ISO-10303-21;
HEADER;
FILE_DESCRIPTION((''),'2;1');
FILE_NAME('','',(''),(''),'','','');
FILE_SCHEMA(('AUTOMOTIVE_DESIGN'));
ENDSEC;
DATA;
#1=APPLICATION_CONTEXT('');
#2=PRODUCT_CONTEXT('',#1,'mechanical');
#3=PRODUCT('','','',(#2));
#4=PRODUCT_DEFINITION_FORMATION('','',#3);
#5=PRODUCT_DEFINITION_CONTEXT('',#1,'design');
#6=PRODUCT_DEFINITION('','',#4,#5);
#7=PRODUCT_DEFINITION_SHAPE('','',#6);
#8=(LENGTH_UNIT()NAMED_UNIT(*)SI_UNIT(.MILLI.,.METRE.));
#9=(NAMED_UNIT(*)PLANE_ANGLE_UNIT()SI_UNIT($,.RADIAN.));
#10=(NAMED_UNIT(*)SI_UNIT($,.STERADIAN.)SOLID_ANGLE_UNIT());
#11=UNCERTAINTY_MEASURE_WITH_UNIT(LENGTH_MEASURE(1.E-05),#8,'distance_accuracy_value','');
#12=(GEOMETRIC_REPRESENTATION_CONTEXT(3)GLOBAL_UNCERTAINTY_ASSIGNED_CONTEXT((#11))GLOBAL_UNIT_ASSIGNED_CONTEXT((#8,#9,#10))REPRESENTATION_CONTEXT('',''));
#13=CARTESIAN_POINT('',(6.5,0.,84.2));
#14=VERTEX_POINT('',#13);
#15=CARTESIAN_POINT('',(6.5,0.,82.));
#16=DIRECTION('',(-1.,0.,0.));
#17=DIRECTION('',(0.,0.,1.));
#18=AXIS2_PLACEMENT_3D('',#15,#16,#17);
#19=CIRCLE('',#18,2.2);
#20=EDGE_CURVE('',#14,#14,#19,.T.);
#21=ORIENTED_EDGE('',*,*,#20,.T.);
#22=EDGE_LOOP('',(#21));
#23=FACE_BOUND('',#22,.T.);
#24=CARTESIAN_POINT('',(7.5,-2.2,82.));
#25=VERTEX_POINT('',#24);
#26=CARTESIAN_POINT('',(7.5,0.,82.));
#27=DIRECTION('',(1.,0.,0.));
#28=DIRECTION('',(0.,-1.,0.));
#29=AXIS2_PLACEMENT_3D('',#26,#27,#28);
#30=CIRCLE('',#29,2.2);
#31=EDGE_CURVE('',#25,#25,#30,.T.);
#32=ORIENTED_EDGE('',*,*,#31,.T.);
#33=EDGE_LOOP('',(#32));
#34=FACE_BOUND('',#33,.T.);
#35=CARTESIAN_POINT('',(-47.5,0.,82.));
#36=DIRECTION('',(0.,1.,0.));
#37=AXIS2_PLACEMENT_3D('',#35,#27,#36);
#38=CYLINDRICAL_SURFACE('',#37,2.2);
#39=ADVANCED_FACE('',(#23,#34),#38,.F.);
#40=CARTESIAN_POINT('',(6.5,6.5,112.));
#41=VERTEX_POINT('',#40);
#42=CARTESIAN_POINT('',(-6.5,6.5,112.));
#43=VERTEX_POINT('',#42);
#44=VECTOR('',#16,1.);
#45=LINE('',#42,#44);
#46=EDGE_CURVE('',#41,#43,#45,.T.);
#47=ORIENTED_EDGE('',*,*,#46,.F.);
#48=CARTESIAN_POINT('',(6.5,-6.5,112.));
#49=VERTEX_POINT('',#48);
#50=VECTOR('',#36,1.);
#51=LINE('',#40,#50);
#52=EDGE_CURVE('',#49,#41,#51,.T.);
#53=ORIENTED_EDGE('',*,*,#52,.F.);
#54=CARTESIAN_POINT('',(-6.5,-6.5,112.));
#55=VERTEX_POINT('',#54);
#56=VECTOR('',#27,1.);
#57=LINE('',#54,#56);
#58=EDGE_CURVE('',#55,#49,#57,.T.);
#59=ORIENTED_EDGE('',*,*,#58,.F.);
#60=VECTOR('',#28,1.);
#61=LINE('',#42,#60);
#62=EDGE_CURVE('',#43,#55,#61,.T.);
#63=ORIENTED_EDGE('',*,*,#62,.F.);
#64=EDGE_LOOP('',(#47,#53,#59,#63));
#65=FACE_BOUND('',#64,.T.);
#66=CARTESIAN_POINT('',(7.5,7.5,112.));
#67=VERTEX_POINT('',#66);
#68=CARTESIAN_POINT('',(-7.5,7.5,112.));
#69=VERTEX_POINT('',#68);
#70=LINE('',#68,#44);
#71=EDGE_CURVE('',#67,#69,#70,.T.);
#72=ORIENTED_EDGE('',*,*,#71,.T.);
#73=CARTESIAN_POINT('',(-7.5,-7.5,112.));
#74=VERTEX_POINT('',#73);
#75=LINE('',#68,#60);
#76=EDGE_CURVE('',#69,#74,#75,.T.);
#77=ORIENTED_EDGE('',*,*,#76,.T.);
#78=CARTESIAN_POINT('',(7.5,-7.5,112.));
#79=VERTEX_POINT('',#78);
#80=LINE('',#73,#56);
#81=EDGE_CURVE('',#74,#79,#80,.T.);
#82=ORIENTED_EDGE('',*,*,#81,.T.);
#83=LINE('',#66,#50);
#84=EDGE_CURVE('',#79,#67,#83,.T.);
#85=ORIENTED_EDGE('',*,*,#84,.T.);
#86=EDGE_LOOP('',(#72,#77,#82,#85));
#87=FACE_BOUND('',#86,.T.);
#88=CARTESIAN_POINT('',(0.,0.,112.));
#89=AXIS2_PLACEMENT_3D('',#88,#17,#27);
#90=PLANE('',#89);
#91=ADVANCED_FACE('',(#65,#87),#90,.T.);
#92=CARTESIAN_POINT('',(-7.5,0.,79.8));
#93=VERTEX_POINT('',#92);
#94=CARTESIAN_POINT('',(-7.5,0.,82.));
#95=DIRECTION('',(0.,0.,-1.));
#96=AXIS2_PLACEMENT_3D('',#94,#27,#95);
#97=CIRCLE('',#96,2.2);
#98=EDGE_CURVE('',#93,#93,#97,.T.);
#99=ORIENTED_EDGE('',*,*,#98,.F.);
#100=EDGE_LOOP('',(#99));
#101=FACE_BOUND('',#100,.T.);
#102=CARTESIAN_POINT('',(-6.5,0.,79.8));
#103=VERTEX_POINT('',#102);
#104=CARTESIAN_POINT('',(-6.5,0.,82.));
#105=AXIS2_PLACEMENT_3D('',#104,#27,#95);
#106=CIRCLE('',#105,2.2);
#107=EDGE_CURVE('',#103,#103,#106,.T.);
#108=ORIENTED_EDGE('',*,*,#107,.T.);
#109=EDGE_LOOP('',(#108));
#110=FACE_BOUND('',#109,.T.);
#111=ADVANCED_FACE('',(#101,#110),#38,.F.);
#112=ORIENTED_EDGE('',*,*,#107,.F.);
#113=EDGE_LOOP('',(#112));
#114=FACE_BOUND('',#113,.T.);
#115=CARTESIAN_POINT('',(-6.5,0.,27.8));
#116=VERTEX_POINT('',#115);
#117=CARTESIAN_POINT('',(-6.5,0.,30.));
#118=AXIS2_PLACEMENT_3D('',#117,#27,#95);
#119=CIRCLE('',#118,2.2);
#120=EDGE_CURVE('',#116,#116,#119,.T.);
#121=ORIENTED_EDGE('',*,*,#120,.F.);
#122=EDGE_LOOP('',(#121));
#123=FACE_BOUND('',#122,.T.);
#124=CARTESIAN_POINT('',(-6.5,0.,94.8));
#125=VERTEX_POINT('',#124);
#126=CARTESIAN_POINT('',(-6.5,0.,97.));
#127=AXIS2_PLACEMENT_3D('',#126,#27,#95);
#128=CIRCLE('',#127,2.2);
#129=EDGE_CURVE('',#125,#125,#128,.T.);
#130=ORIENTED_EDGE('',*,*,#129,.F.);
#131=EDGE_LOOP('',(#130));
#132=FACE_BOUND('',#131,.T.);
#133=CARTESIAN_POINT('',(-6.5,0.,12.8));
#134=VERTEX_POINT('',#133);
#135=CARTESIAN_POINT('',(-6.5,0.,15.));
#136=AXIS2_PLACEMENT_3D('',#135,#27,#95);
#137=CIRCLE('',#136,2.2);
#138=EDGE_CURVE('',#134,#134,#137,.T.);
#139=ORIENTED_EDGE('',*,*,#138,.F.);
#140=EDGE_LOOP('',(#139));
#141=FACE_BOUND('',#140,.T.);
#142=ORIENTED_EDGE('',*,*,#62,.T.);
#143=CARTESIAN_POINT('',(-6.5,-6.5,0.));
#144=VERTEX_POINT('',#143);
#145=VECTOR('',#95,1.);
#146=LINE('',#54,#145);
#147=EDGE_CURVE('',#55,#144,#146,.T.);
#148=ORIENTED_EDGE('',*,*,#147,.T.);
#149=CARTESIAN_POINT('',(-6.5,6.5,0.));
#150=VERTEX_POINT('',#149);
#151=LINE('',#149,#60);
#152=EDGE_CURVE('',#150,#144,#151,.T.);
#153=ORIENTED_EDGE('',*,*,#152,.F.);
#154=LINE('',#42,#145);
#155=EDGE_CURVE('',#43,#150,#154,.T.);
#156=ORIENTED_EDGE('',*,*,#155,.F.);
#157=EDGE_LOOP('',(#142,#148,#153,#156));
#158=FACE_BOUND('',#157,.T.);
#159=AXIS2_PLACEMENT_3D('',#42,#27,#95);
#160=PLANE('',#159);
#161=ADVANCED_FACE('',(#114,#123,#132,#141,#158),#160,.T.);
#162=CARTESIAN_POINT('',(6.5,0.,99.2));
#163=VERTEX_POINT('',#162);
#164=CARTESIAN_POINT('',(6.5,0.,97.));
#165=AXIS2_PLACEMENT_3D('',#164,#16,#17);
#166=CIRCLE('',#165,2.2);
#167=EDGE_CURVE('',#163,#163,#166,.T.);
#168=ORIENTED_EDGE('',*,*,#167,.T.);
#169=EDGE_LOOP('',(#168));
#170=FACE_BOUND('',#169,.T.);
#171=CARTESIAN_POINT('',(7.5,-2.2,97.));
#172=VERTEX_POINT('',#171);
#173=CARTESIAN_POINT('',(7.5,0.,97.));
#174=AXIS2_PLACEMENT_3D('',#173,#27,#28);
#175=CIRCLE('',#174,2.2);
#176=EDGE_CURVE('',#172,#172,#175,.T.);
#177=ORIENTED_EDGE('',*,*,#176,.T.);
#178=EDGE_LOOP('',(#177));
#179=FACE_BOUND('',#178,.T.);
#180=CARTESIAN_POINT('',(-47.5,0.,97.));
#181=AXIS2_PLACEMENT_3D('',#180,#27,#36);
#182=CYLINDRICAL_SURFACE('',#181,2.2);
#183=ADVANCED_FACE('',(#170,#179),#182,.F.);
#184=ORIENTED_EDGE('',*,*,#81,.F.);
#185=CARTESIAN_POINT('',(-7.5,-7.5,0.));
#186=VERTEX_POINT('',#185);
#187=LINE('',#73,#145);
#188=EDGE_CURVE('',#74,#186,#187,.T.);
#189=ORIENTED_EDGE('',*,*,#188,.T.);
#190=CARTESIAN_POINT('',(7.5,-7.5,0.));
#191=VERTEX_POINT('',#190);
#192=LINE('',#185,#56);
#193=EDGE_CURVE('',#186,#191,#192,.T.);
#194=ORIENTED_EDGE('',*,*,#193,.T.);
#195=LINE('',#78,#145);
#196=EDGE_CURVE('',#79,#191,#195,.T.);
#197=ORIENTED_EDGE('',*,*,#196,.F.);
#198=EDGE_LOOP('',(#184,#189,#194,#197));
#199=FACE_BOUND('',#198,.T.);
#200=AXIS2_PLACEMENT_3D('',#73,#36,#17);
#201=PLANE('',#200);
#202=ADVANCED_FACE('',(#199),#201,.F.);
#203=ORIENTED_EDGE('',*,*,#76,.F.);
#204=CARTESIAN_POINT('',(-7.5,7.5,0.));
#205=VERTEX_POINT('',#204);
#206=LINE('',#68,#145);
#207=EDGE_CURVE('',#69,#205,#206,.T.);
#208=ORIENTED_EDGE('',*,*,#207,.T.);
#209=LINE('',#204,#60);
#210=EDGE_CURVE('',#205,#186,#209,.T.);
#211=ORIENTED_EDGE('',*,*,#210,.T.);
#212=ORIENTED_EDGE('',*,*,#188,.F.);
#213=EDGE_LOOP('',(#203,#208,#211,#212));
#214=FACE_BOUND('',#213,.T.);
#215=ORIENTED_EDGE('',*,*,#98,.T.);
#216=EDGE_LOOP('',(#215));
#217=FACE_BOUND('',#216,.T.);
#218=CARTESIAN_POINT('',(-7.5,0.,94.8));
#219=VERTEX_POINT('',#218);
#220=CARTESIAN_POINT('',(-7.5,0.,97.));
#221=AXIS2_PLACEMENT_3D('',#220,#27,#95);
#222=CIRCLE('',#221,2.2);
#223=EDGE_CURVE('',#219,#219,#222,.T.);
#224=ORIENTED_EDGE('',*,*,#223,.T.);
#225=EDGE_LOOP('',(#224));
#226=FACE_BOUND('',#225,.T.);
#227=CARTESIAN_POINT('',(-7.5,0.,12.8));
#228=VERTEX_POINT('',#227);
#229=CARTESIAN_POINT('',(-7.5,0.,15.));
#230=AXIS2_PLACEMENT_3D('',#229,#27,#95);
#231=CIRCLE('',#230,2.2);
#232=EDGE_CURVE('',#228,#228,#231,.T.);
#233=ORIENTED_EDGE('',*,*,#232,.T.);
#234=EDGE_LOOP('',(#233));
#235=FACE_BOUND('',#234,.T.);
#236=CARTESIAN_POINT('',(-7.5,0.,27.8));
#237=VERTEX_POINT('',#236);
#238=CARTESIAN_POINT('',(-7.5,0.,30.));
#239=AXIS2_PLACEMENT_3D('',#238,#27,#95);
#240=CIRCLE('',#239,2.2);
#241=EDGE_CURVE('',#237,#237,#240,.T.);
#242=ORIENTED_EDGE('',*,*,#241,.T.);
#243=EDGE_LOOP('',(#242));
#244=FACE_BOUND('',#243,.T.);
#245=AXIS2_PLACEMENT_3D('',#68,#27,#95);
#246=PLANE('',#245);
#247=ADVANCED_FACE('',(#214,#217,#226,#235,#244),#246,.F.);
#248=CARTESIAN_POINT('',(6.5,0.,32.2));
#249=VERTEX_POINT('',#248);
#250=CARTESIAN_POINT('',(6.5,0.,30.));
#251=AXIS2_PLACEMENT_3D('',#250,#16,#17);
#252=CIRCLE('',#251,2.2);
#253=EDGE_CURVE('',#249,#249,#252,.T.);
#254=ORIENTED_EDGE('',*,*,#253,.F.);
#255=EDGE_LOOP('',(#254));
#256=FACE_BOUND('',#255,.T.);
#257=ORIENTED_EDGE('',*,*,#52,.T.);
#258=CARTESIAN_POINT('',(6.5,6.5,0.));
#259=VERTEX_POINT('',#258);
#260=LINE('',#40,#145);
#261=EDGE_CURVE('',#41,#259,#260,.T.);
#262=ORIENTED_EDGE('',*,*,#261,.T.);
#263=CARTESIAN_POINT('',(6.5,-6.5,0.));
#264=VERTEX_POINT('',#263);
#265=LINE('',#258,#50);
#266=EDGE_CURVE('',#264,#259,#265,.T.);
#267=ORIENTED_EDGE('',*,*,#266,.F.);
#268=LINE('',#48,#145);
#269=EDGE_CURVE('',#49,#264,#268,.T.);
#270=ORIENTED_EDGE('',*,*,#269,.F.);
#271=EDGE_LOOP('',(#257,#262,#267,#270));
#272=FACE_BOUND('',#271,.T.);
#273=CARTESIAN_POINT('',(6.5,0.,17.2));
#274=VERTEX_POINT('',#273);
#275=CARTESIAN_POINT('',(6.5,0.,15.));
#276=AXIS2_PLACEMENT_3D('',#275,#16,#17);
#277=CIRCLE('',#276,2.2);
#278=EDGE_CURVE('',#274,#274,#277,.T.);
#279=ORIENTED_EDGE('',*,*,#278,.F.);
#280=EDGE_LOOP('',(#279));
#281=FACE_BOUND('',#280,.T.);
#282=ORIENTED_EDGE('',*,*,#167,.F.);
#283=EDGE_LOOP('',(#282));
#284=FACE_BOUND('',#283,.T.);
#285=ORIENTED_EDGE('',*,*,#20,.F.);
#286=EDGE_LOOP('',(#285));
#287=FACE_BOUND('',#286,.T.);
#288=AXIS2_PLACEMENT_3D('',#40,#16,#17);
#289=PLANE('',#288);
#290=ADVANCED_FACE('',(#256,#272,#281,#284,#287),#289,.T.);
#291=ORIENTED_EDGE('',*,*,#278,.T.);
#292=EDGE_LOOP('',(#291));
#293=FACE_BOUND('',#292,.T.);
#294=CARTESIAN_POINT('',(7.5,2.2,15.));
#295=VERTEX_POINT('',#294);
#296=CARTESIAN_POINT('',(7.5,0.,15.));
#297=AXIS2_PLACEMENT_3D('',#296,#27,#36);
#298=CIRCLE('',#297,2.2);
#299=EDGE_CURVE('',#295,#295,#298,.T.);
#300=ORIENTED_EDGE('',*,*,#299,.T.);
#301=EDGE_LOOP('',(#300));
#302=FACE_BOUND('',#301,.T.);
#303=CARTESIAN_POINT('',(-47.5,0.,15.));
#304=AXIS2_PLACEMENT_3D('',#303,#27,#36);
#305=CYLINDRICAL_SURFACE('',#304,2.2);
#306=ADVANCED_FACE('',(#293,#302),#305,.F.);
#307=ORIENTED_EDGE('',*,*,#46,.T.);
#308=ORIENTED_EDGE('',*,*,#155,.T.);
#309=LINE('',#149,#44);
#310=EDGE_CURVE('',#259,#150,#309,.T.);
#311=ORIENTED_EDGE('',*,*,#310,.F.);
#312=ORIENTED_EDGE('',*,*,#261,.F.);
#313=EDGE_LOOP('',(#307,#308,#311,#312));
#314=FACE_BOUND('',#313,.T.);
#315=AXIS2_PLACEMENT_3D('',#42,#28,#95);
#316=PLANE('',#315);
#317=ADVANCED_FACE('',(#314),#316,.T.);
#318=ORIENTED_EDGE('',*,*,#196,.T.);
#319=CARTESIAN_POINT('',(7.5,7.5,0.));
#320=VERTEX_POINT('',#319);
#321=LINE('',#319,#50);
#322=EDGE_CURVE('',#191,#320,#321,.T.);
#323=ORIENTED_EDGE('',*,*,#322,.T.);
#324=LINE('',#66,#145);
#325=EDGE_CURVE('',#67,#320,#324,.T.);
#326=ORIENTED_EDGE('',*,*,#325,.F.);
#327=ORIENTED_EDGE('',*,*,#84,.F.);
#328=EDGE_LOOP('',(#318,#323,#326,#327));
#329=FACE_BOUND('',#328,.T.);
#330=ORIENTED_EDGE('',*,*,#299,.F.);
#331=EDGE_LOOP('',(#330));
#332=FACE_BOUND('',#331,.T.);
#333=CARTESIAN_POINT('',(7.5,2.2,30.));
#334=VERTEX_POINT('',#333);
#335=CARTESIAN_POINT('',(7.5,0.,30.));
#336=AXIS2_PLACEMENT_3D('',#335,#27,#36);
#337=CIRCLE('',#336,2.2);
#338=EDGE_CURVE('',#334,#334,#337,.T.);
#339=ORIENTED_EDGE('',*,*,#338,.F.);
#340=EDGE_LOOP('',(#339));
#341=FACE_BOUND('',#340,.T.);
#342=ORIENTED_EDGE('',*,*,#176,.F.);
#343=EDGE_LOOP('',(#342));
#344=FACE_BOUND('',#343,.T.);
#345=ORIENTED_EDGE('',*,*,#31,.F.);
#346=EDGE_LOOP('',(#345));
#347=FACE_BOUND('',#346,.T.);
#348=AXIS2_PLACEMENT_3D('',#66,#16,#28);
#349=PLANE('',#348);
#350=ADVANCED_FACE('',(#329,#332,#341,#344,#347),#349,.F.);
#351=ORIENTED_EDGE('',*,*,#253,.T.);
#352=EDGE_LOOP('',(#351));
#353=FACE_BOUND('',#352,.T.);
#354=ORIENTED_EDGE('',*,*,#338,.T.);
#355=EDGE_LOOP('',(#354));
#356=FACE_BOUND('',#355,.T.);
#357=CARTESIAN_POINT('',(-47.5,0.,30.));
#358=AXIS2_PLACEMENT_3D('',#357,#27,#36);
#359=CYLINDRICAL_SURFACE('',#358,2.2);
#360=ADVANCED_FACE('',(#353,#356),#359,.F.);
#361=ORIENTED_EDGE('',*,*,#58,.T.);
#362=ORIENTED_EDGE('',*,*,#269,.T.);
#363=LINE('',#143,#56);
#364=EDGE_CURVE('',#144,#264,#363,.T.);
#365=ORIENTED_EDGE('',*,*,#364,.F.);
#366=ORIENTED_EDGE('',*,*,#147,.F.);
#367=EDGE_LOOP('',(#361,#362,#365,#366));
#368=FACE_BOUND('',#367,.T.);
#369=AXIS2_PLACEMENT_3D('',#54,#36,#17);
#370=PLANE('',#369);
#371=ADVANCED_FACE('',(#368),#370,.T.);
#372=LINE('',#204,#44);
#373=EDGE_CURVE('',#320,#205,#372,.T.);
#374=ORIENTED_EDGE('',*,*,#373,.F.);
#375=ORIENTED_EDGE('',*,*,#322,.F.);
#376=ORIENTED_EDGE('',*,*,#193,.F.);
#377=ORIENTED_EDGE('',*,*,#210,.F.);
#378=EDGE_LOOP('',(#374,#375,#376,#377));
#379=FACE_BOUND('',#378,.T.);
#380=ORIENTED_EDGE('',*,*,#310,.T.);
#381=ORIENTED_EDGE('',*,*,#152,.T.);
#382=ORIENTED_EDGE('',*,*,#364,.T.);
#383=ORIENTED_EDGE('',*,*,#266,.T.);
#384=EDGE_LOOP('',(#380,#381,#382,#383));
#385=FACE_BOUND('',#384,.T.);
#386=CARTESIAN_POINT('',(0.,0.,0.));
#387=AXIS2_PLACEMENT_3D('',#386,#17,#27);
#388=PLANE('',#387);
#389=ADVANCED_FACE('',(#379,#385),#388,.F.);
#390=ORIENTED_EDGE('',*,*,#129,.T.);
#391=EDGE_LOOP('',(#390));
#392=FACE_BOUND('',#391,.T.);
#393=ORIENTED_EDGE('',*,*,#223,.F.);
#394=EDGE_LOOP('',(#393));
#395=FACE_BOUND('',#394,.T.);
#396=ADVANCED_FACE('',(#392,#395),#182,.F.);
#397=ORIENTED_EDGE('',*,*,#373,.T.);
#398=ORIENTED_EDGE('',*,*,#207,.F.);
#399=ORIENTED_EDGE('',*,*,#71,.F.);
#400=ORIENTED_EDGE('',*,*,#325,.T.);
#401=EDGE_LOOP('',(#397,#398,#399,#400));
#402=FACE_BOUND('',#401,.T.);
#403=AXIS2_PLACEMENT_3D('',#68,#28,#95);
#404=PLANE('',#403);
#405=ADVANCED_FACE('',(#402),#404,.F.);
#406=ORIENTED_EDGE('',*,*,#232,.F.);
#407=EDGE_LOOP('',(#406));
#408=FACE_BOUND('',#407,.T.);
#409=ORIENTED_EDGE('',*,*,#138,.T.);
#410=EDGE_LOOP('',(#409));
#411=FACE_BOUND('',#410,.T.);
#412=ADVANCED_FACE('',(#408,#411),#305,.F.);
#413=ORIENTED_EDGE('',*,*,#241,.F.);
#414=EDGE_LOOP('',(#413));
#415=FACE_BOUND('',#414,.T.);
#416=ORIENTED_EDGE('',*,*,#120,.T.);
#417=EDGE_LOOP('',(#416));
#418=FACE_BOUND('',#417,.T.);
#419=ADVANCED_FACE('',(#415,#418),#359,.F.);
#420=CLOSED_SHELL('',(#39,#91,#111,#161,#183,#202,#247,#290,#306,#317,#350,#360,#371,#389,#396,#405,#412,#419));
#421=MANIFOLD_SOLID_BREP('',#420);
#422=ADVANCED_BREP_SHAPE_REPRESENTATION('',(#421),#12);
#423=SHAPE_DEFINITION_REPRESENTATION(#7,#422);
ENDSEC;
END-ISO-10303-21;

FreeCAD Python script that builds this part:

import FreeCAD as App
import Part
import Sketcher

V = App.Vector
Q = App.Units.Quantity

doc = App.newDocument("Part")
body = doc.addObject("PartDesign::Body", "Body")

# Sketch on XY plane
sketch1 = body.newObject("Sketcher::SketchObject", "Sketch")
sketch1.AttachmentSupport = (doc.getObject("XY_Plane"), [""])
sketch1.MapMode = "FlatFace"
sketch1.addGeometry([
    Part.LineSegment(V(-7.5, 7.5, 0), V(-7.5, -7.5, 0)),  # 0
    Part.LineSegment(V(-7.5, -7.5, 0), V(7.5, -7.5, 0)),  # 1
    Part.LineSegment(V(7.5, -7.5, 0), V(7.5, 7.5, 0)),  # 2
    Part.LineSegment(V(7.5, 7.5, 0), V(-7.5, 7.5, 0)),  # 3
    Part.LineSegment(V(6.5, -6.5, 0), V(-6.5, -6.5, 0)),  # 4
    Part.LineSegment(V(-6.5, -6.5, 0), V(-6.5, 6.5, 0)),  # 5
    Part.LineSegment(V(-6.5, 6.5, 0), V(6.5, 6.5, 0)),  # 6
    Part.LineSegment(V(6.5, 6.5, 0), V(6.5, -6.5, 0)),  # 7
], False)
sketch1.addConstraint([
    Sketcher.Constraint("Coincident", 0, 2, 1, 1),
    Sketcher.Constraint("Coincident", 1, 2, 2, 1),
    Sketcher.Constraint("Coincident", 2, 2, 3, 1),
    Sketcher.Constraint("Coincident", 3, 2, 0, 1),
    Sketcher.Constraint("Coincident", 4, 2, 5, 1),
    Sketcher.Constraint("Coincident", 5, 2, 6, 1),
    Sketcher.Constraint("Coincident", 6, 2, 7, 1),
    Sketcher.Constraint("Coincident", 7, 2, 4, 1),
    Sketcher.Constraint("Vertical", 0),
    Sketcher.Constraint("Horizontal", 1),
    Sketcher.Constraint("Vertical", 2),
    Sketcher.Constraint("Horizontal", 3),
    Sketcher.Constraint("Horizontal", 4),
    Sketcher.Constraint("Vertical", 5),
    Sketcher.Constraint("Horizontal", 6),
    Sketcher.Constraint("Vertical", 7),
    Sketcher.Constraint("Symmetric", 0, 2, 2, 2, -1, 1),
    Sketcher.Constraint("Symmetric", 4, 2, 6, 2, -1, 1),
    Sketcher.Constraint("Equal", 3, 0),
    Sketcher.Constraint("Equal", 6, 5),
    Sketcher.Constraint("DistanceX", 1, 1, 1, 2, Q("15 mm")),
    Sketcher.Constraint("DistanceX", 4, 2, 4, 1, Q("13 mm")),
])
pad1 = body.newObject("PartDesign::Pad", "Pad")
pad1.Profile = sketch1
pad1.Length = 112

# Sketch on YZ plane
sketch2 = body.newObject("Sketcher::SketchObject", "Sketch001")
sketch2.AttachmentSupport = (doc.getObject("YZ_Plane"), [""])
sketch2.MapMode = "FlatFace"
sketch2.AttachmentOffset = App.Placement(V(0, 0, 7.5), App.Rotation())
sketch2.addGeometry([
    Part.Circle(V(0, 15, 0), V(0, 0, 1), 2.2),
    Part.Circle(V(0, 30, 0), V(0, 0, 1), 2.2),
    Part.Circle(V(0, 97, 0), V(0, 0, 1), 2.2),
    Part.Circle(V(0, 82, 0), V(0, 0, 1), 2.2),
], False)
sketch2.addConstraint([
    Sketcher.Constraint("Equal", 0, 1),
    Sketcher.Constraint("Equal", 1, 2),
    Sketcher.Constraint("Equal", 2, 3),
    Sketcher.Constraint("PointOnObject", 0, 3, -2),
    Sketcher.Constraint("PointOnObject", 1, 3, -2),
    Sketcher.Constraint("PointOnObject", 2, 3, -2),
    Sketcher.Constraint("PointOnObject", 3, 3, -2),
    Sketcher.Constraint("Diameter", 0, Q("4.4 mm")),
    Sketcher.Constraint("DistanceY", -1, 1, 0, 3, Q("15 mm")),
    Sketcher.Constraint("DistanceY", -1, 1, 1, 3, Q("30 mm")),
    Sketcher.Constraint("DistanceY", -1, 1, 2, 3, Q("97 mm")),
    Sketcher.Constraint("DistanceY", -1, 1, 3, 3, Q("82 mm")),
])
pocket1 = body.newObject("PartDesign::Pocket", "Pocket")
pocket1.Profile = sketch2
pocket1.Length = 55

doc.recompute()
